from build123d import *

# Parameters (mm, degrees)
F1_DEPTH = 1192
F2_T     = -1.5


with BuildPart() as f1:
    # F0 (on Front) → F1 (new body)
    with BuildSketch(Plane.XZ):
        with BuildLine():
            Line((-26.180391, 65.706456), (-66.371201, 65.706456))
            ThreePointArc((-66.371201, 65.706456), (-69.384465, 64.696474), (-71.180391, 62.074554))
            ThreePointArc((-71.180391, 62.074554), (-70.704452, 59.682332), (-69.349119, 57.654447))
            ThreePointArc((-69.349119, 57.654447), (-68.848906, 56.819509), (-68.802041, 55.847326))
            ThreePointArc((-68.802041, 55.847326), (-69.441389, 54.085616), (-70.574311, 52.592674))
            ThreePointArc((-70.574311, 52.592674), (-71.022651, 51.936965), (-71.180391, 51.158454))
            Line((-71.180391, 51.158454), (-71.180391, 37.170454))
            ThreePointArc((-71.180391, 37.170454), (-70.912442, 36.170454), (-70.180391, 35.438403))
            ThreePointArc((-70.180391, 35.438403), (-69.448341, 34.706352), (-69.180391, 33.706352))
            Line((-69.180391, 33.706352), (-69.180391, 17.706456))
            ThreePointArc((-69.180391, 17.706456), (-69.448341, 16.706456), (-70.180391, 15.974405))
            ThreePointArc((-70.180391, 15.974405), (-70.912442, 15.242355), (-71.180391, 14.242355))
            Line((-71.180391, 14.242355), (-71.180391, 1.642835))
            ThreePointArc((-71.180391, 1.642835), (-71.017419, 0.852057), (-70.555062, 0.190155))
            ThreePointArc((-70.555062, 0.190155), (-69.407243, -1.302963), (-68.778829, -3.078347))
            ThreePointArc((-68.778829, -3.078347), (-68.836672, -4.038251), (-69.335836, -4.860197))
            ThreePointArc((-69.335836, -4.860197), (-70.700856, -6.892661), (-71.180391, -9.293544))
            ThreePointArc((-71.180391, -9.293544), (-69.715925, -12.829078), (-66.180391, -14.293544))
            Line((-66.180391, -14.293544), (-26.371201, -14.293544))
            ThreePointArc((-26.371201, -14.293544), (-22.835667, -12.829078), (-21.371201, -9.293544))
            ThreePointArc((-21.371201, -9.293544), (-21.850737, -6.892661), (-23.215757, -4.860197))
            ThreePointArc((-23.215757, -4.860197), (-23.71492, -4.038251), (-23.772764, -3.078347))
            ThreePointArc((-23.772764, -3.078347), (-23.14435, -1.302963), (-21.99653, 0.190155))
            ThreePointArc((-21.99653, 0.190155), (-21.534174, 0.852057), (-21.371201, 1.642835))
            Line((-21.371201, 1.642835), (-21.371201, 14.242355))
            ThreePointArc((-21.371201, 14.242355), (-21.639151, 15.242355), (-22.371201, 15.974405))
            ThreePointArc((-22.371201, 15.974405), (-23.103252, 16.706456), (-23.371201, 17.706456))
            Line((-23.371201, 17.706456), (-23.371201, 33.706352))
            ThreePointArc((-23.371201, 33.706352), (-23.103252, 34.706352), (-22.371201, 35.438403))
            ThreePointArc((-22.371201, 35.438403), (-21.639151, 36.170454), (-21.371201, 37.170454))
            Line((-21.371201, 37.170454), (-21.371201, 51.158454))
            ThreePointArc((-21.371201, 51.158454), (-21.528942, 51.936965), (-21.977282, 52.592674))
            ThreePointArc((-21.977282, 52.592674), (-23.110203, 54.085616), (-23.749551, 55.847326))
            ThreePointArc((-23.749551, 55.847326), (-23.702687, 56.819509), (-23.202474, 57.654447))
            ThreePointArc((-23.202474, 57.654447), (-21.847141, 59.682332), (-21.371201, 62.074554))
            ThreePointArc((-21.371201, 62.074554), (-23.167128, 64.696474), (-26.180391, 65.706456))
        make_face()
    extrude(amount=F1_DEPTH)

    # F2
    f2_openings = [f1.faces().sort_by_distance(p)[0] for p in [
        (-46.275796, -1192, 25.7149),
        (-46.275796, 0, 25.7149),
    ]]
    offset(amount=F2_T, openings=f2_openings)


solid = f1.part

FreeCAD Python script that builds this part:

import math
import FreeCAD as App
import Part
import Sketcher

V = App.Vector
Q = App.Units.Quantity


def faces_at(feature, points):
    """Names of the faces that lie closest to the given points."""
    faces = feature.Shape.Faces
    near = lambda p: min(range(len(faces)), key=lambda i: faces[i].distToShape(Part.Vertex(*p))[0])
    return sorted({f"Face{near(p) + 1}" for p in points})

doc = App.newDocument("Part")
params = doc.addObject("Spreadsheet::Sheet", "Params")
for row, (alias, value) in enumerate([
    ("sketch1_radius", "4.999999 mm"),
    ("sketch1_radius2", "2 mm"),
    ("sketch1_radius3", "6.000001 mm"),
    ("sketch1_radius4", "6.250001 mm"),
    ("pad1_length", "1192 mm"),
    ("thickness_wall", "1.5 mm"),
], start=1):
    params.set(f"A{row}", alias)
    params.set(f"B{row}", "=" + value)
    params.setAlias(f"B{row}", alias)

body = doc.addObject("PartDesign::Body", "Body")

# Sketch on XZ plane
sketch1 = body.newObject("Sketcher::SketchObject", "Sketch")
sketch1.AttachmentSupport = (doc.getObject("XZ_Plane"), [""])
sketch1.MapMode = "FlatFace"
sketch1.addGeometry([
    Part.LineSegment(V(-26.2, 65.7, 0), V(-66.4, 65.7, 0)),  # 0
    Part.ArcOfCircle(Part.Circle(V(-66.4, 60.7, 0), V(0, 0, 1), 5), math.radians(90), math.radians(164)),  # 1
    Part.ArcOfCircle(Part.Circle(V(-64.9, 62.1, 0), V(0, 0, 1), 6.2), math.radians(180), math.radians(225)),  # 2
    Part.ArcOfCircle(Part.Circle(V(-70.8, 56.2, 0), V(0, 0, 1), 2), math.radians(-11), math.radians(45)),  # 3
    Part.ArcOfCircle(Part.Circle(V(-74.9, 57.1, 0), V(0, 0, 1), 6.2), math.radians(-46), math.radians(-11)),  # 4
    Part.ArcOfCircle(Part.Circle(V(-69.2, 51.2, 0), V(0, 0, 1), 2), math.radians(134), math.radians(180)),  # 5
    Part.LineSegment(V(-71.2, 51.2, 0), V(-71.2, 37.2, 0)),  # 6
    Part.ArcOfCircle(Part.Circle(V(-69.2, 37.2, 0), V(0, 0, 1), 2), math.radians(180), math.radians(240)),  # 7
    Part.ArcOfCircle(Part.Circle(V(-71.2, 33.7, 0), V(0, 0, 1), 2), math.radians(0), math.radians(60)),  # 8
    Part.LineSegment(V(-69.2, 33.7, 0), V(-69.2, 17.7, 0)),  # 9
    Part.ArcOfCircle(Part.Circle(V(-71.2, 17.7, 0), V(0, 0, 1), 2), math.radians(-60), math.radians(0)),  # 10
    Part.ArcOfCircle(Part.Circle(V(-69.2, 14.2, 0), V(0, 0, 1), 2), math.radians(120), math.radians(180)),  # 11
    Part.LineSegment(V(-71.2, 14.2, 0), V(-71.2, 1.6, 0)),  # 12
    Part.ArcOfCircle(Part.Circle(V(-69.2, 1.6, 0), V(0, 0, 1), 2), math.radians(180), math.radians(227)),  # 13
    Part.ArcOfCircle(Part.Circle(V(-74.7, -4.2, 0), V(0, 0, 1), 6), math.radians(10), math.radians(47)),  # 14
    Part.ArcOfCircle(Part.Circle(V(-70.7, -3.4, 0), V(0, 0, 1), 2), math.radians(-45), math.radians(10)),  # 15
    Part.ArcOfCircle(Part.Circle(V(-64.9, -9.3, 0), V(0, 0, 1), 6.3), math.radians(135), math.radians(180)),  # 16
    Part.ArcOfCircle(Part.Circle(V(-66.2, -9.3, 0), V(0, 0, 1), 5), math.radians(180), math.radians(270)),  # 17
    Part.LineSegment(V(-66.2, -14.3, 0), V(-26.4, -14.3, 0)),  # 18
    Part.ArcOfCircle(Part.Circle(V(-26.4, -9.3, 0), V(0, 0, 1), 5), math.radians(-90), math.radians(0)),  # 19
    Part.ArcOfCircle(Part.Circle(V(-27.6, -9.3, 0), V(0, 0, 1), 6.3), math.radians(0), math.radians(45)),  # 20
    Part.ArcOfCircle(Part.Circle(V(-21.8, -3.4, 0), V(0, 0, 1), 2), math.radians(170), math.radians(225)),  # 21
    Part.ArcOfCircle(Part.Circle(V(-17.9, -4.2, 0), V(0, 0, 1), 6), math.radians(133), math.radians(170)),  # 22
    Part.ArcOfCircle(Part.Circle(V(-23.4, 1.6, 0), V(0, 0, 1), 2), math.radians(-47), math.radians(0)),  # 23
    Part.LineSegment(V(-21.4, 1.6, 0), V(-21.4, 14.2, 0)),  # 24
    Part.ArcOfCircle(Part.Circle(V(-23.4, 14.2, 0), V(0, 0, 1), 2), math.radians(0), math.radians(60)),  # 25
    Part.ArcOfCircle(Part.Circle(V(-21.4, 17.7, 0), V(0, 0, 1), 2), math.radians(180), math.radians(240)),  # 26
    Part.LineSegment(V(-23.4, 17.7, 0), V(-23.4, 33.7, 0)),  # 27
    Part.ArcOfCircle(Part.Circle(V(-21.4, 33.7, 0), V(0, 0, 1), 2), math.radians(120), math.radians(180)),  # 28
    Part.ArcOfCircle(Part.Circle(V(-23.4, 37.2, 0), V(0, 0, 1), 2), math.radians(-60), math.radians(0)),  # 29
    Part.LineSegment(V(-21.4, 37.2, 0), V(-21.4, 51.2, 0)),  # 30
    Part.ArcOfCircle(Part.Circle(V(-23.4, 51.2, 0), V(0, 0, 1), 2), math.radians(0), math.radians(46)),  # 31
    Part.ArcOfCircle(Part.Circle(V(-17.6, 57.1, 0), V(0, 0, 1), 6.2), math.radians(-169), math.radians(-134)),  # 32
    Part.ArcOfCircle(Part.Circle(V(-21.8, 56.2, 0), V(0, 0, 1), 2), math.radians(135), math.radians(191)),  # 33
    Part.ArcOfCircle(Part.Circle(V(-27.6, 62.1, 0), V(0, 0, 1), 6.3), math.radians(-45), math.radians(0)),  # 34
    Part.ArcOfCircle(Part.Circle(V(-26.2, 60.7, 0), V(0, 0, 1), 5), math.radians(16), math.radians(90)),  # 35
], False)
sketch1.addConstraint([
    Sketcher.Constraint("Tangent", 0, 2, 1, 1),
    Sketcher.Constraint("Coincident", 1, 2, 2, 1),
    Sketcher.Constraint("Tangent", 2, 2, 3, 2),
    Sketcher.Constraint("Tangent", 3, 1, 4, 2),
    Sketcher.Constraint("Tangent", 4, 1, 5, 1),
    Sketcher.Constraint("Tangent", 5, 2, 6, 1),
    Sketcher.Constraint("Tangent", 6, 2, 7, 1),
    Sketcher.Constraint("Tangent", 7, 2, 8, 2),
    Sketcher.Constraint("Tangent", 8, 1, 9, 1),
    Sketcher.Constraint("Tangent", 9, 2, 10, 2),
    Sketcher.Constraint("Coincident", 10, 1, 11, 1),
    Sketcher.Constraint("Tangent", 11, 2, 12, 1),
    Sketcher.Constraint("Tangent", 12, 2, 13, 1),
    Sketcher.Constraint("Tangent", 13, 2, 14, 2),
    Sketcher.Constraint("Tangent", 14, 1, 15, 2),
    Sketcher.Constraint("Tangent", 15, 1, 16, 1),
    Sketcher.Constraint("Tangent", 16, 2, 17, 1),
    Sketcher.Constraint("Tangent", 17, 2, 18, 1),
    Sketcher.Constraint("Tangent", 18, 2, 19, 1),
    Sketcher.Constraint("Tangent", 19, 2, 20, 1),
    Sketcher.Constraint("Tangent", 20, 2, 21, 2),
    Sketcher.Constraint("Tangent", 21, 1, 22, 2),
    Sketcher.Constraint("Tangent", 22, 1, 23, 1),
    Sketcher.Constraint("Tangent", 23, 2, 24, 1),
    Sketcher.Constraint("Tangent", 24, 2, 25, 1),
    Sketcher.Constraint("Tangent", 25, 2, 26, 2),
    Sketcher.Constraint("Tangent", 26, 1, 27, 1),
    Sketcher.Constraint("Tangent", 27, 2, 28, 2),
    Sketcher.Constraint("Tangent", 28, 1, 29, 1),
    Sketcher.Constraint("Tangent", 29, 2, 30, 1),
    Sketcher.Constraint("Tangent", 30, 2, 31, 1),
    Sketcher.Constraint("Tangent", 31, 2, 32, 2),
    Sketcher.Constraint("Tangent", 32, 1, 33, 2),
    Sketcher.Constraint("Tangent", 33, 1, 34, 1),
    Sketcher.Constraint("Coincident", 34, 2, 35, 1),
    Sketcher.Constraint("Tangent", 35, 2, 0, 1),
    Sketcher.Constraint("Horizontal", 0),
    Sketcher.Constraint("Vertical", 6),
    Sketcher.Constraint("Vertical", 9),
    Sketcher.Constraint("Vertical", 12),
    Sketcher.Constraint("Horizontal", 18),
    Sketcher.Constraint("Vertical", 24),
    Sketcher.Constraint("Vertical", 27),
    Sketcher.Constraint("Vertical", 30),
    Sketcher.Constraint("Equal", 8, 10),
    Sketcher.Constraint("Equal", 5, 11),
    Sketcher.Constraint("Equal", 11, 13),
    Sketcher.Constraint("Equal", 13, 15),
    Sketcher.Constraint("Equal", 1, 17),
    Sketcher.Constraint("Equal", 17, 19),
    Sketcher.Constraint("Equal", 3, 21),
    Sketcher.Constraint("Equal", 10, 23),
    Sketcher.Constraint("Equal", 21, 25),
    Sketcher.Constraint("Equal", 7, 26),
    Sketcher.Constraint("Equal", 26, 28),
    Sketcher.Constraint("Equal", 23, 29),
    Sketcher.Constraint("Equal", 25, 31),
    Sketcher.Constraint("Equal", 28, 33),
    Sketcher.Constraint("Equal", 16, 34),
    Sketcher.Constraint("Equal", 19, 35),
    Sketcher.Constraint("Horizontal", 16, 3, 17, 3),
    Sketcher.Constraint("Horizontal", 34, 3, 1, 2),
    Sketcher.Constraint("Horizontal", 28, 3, 8, 1),
    Sketcher.Constraint("Horizontal", 26, 3, 9, 2),
    Sketcher.Constraint("Horizontal", 25, 3, 11, 2),
    Sketcher.Constraint("Horizontal", 16, 2, 19, 2),
    Sketcher.Constraint("Horizontal", 15, 1, 20, 2),
    Sketcher.Constraint("Horizontal", 14, 1, 21, 1),
    Sketcher.Constraint("Horizontal", 13, 2, 22, 1),
    Sketcher.Constraint("Horizontal", 12, 2, 23, 2),
    Sketcher.Constraint("Horizontal", 10, 1, 25, 2),
    Sketcher.Constraint("Horizontal", 7, 2, 28, 1),
    Sketcher.Constraint("Horizontal", 6, 2, 29, 2),
    Sketcher.Constraint("Horizontal", 5, 2, 30, 2),
    Sketcher.Constraint("Horizontal", 4, 1, 31, 2),
    Sketcher.Constraint("Horizontal", 3, 1, 32, 1),
    Sketcher.Constraint("Horizontal", 2, 2, 33, 1),
    Sketcher.Constraint("Horizontal", 1, 2, 34, 2),
    Sketcher.Constraint("Vertical", 5, 3, 11, 3),
    Sketcher.Constraint("Vertical", 23, 3, 29, 3),
    Sketcher.Constraint("Vertical", 1, 2, 5, 2),
    Sketcher.Constraint("Vertical", 7, 3, 8, 1),
    Sketcher.Constraint("Vertical", 7, 2, 10, 1),
    Sketcher.Constraint("Vertical", 12, 2, 16, 2),
    Sketcher.Constraint("Vertical", 28, 3, 19, 2),
    Sketcher.Constraint("Vertical", 30, 2, 34, 2),
    Sketcher.Constraint("Radius", 1, Q("4.999999 mm")),
    Sketcher.Constraint("Radius", 7, Q("2 mm")),
    Sketcher.Constraint("Radius", 22, Q("6.000001 mm")),
    Sketcher.Constraint("Radius", 16, Q("6.250001 mm")),
    Sketcher.Constraint("DistanceY", 6, 2, 6, 1, Q("13.988 mm")),
    Sketcher.Constraint("Radius", 2, Q("6.249995 mm")),
    Sketcher.Constraint("Radius", 4, Q("6.249726 mm")),
    Sketcher.Constraint("DistanceX", 0, 2, 0, 1, Q("40.19081 mm")),
    Sketcher.Constraint("DistanceX", 18, 1, 18, 2, Q("39.80919 mm")),
    Sketcher.Constraint("DistanceY", 12, 2, 12, 1, Q("12.59952 mm")),
    Sketcher.Constraint("DistanceX", 19, 3, -1, 1, Q("26.371201 mm")),
    Sketcher.Constraint("DistanceY", 9, 2, 9, 1, Q("15.999896 mm")),
    Sketcher.Constraint("DistanceY", -1, 1, 2, 3, Q("62.074552 mm")),
    Sketcher.Constraint("DistanceY", -1, 1, 3, 3, Q("56.240012 mm")),
    Sketcher.Constraint("DistanceY", -1, 1, 8, 3, Q("33.706349 mm")),
    Sketcher.Constraint("DistanceY", 14, 3, -1, 1, Q("4.167889 mm")),
    Sketcher.Constraint("DistanceX", 14, 1, -1, 1, Q("68.778829 mm")),
])
sketch1.setExpression("Constraints[86]", "Params.sketch1_radius")
sketch1.setExpression("Constraints[87]", "Params.sketch1_radius2")
sketch1.setExpression("Constraints[88]", "Params.sketch1_radius3")
sketch1.setExpression("Constraints[89]", "Params.sketch1_radius4")
pad1 = body.newObject("PartDesign::Pad", "Pad")
pad1.Profile = sketch1
pad1.setExpression("Length", "Params.pad1_length")
doc.recompute()

thickness = body.newObject("PartDesign::Thickness", "Thickness")
thickness.Base = (pad1, faces_at(pad1, [(-46.276, -1192, 25.706), (-46.276, 0, 25.706)]))
thickness.setExpression("Value", "Params.thickness_wall")
thickness.Reversed = True
thickness.Join = "Arc"

doc.recompute()
